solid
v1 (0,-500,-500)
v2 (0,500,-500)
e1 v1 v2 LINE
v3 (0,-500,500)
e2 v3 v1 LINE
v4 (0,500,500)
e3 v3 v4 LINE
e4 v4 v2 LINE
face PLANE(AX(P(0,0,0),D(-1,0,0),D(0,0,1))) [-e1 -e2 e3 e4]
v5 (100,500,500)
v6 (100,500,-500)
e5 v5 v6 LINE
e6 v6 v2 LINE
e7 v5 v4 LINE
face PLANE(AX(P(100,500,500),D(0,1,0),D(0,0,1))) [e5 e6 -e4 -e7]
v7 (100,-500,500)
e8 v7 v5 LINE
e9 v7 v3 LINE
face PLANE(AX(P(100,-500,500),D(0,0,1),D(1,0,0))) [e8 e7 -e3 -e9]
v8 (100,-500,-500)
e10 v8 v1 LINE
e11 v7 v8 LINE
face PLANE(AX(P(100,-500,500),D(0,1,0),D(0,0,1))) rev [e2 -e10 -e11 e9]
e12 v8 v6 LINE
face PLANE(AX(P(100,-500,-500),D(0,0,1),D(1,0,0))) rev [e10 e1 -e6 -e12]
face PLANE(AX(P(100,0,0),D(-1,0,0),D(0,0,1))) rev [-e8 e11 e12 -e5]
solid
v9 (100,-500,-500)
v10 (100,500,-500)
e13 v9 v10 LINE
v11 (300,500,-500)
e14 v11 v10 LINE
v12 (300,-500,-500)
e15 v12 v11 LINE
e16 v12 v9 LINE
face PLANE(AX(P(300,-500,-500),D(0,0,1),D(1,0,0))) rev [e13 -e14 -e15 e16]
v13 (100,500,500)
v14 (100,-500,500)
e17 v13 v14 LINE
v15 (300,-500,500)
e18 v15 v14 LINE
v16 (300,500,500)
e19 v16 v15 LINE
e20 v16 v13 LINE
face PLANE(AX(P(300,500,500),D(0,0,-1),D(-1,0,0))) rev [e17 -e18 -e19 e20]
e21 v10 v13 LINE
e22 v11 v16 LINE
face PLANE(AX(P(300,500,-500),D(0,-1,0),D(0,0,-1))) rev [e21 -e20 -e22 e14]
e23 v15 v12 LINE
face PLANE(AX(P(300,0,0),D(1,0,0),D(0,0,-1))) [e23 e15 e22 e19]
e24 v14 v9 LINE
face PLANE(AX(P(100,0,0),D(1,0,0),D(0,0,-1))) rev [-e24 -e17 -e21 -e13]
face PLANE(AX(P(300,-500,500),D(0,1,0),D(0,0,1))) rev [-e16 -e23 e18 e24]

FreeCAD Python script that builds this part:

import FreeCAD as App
import Part
import Sketcher
Q = App.Units.Quantity


def add_polygon(sketch, points):
    """Adds a closed chain of lines whose ends are joined by coincident constraints."""
    first, n = sketch.GeometryCount, len(points)
    for a, b in zip(points, points[1:] + points[:1]):
        sketch.addGeometry(Part.LineSegment(App.Vector(*a, 0), App.Vector(*b, 0)), False)
    for i in range(n):
        sketch.addConstraint(Sketcher.Constraint("Coincident", first + i, 2, first + (i + 1) % n, 1))

doc = App.newDocument("Part")
body = doc.addObject("PartDesign::Body", "Body")

sketch1 = body.newObject("Sketcher::SketchObject", "Sketch")
sketch1.AttachmentSupport = (doc.getObject("YZ_Plane"), [""])
sketch1.MapMode = "FlatFace"
add_polygon(sketch1, [(500, 500), (-500, 500), (-500, -500), (500, -500)])
sketch1.addConstraint([
    Sketcher.Constraint("Horizontal", 0),
    Sketcher.Constraint("Vertical", 1),
    Sketcher.Constraint("Horizontal", 2),
    Sketcher.Constraint("Vertical", 3),
    Sketcher.Constraint("Symmetric", 0, 2, 2, 2, -1, 1),
    Sketcher.Constraint("Equal", 2, 1),
    Sketcher.Constraint("DistanceX", 0, 2, 0, 1, Q("1000 mm")),
])
pad1 = body.newObject("PartDesign::Pad", "Pad")
pad1.Profile = sketch1
pad1.Length = 100
body2 = doc.addObject("PartDesign::Body", "Body001")

sketch2 = body2.newObject("Sketcher::SketchObject", "Sketch001")
sketch2.AttachmentSupport = (doc.getObject("YZ_Plane001"), [""])
sketch2.MapMode = "FlatFace"
sketch2.AttachmentOffset = App.Placement(App.Vector(0, 0, 100), App.Rotation())
add_polygon(sketch2, [(500, 500), (-500, 500), (-500, -500), (500, -500)])
sketch2.addConstraint([
    Sketcher.Constraint("Horizontal", 0),
    Sketcher.Constraint("Vertical", 1),
    Sketcher.Constraint("Horizontal", 2),
    Sketcher.Constraint("Vertical", 3),
    Sketcher.Constraint("Symmetric", 0, 2, 2, 2, -1, 1),
    Sketcher.Constraint("Equal", 2, 1),
    Sketcher.Constraint("DistanceX", 0, 2, 0, 1, Q("1000 mm")),
])
pad2 = body2.newObject("PartDesign::Pad", "Pad001")
pad2.Profile = sketch2
pad2.Length = 200

doc.recompute()
